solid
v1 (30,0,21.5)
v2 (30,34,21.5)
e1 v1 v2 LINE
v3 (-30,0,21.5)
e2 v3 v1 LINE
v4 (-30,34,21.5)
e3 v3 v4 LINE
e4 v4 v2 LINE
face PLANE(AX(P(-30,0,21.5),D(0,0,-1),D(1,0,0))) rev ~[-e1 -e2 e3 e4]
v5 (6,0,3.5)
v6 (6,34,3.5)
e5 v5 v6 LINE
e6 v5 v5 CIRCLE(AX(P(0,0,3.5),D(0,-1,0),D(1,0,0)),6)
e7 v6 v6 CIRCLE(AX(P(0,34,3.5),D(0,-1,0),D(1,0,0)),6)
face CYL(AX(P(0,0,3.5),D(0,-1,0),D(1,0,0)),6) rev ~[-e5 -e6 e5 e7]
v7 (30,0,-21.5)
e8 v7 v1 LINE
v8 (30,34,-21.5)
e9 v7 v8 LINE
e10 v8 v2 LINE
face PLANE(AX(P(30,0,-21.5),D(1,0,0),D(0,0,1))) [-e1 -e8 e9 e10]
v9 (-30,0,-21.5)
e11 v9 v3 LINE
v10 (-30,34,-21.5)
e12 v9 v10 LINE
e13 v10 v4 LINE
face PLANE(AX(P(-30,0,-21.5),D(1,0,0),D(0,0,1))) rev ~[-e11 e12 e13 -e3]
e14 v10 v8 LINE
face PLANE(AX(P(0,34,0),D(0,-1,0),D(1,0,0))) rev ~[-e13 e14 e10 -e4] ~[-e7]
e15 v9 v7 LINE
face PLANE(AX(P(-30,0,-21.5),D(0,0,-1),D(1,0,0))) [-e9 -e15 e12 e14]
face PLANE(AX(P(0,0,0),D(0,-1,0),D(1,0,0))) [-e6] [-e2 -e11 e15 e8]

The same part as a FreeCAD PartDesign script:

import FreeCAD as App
import Part
import Sketcher
Q = App.Units.Quantity

doc = App.newDocument("Part")
body = doc.addObject("PartDesign::Body", "Body")

sketch1 = body.newObject("Sketcher::SketchObject", "Sketch")
sketch1.AttachmentSupport = (doc.getObject("XZ_Plane"), [""])
sketch1.MapMode = "FlatFace"
sketch1.addGeometry([
    Part.LineSegment(App.Vector(-30, 22, 0), App.Vector(-30, -22, 0)),
    Part.LineSegment(App.Vector(-30, -22, 0), App.Vector(30, -22, 0)),
    Part.LineSegment(App.Vector(30, -22, 0), App.Vector(30, 22, 0)),
    Part.LineSegment(App.Vector(30, 22, 0), App.Vector(-30, 22, 0)),
    Part.Circle(App.Vector(0, 4, 0), App.Vector(0, 0, 1), 6),
], False)
sketch1.addConstraint([
    Sketcher.Constraint("Coincident", 0, 2, 1, 1),
    Sketcher.Constraint("Coincident", 1, 2, 2, 1),
    Sketcher.Constraint("Coincident", 2, 2, 3, 1),
    Sketcher.Constraint("Coincident", 3, 2, 0, 1),
    Sketcher.Constraint("Vertical", 0),
    Sketcher.Constraint("Horizontal", 1),
    Sketcher.Constraint("Vertical", 2),
    Sketcher.Constraint("Horizontal", 3),
    Sketcher.Constraint("Symmetric", 0, 2, 2, 2, -1, 1),
    Sketcher.Constraint("PointOnObject", 4, 3, -2),
    Sketcher.Constraint("Diameter", 4, Q("12 mm")),
    Sketcher.Constraint("DistanceX", 1, 1, 1, 2, Q("60 mm")),
    Sketcher.Constraint("DistanceY", 0, 2, 0, 1, Q("43 mm")),
    Sketcher.Constraint("DistanceY", 0, 2, 4, 3, Q("25 mm")),
])
pad1 = body.newObject("PartDesign::Pad", "Pad")
pad1.Profile = sketch1
pad1.Length = 34
pad1.Reversed = True

doc.recompute()
